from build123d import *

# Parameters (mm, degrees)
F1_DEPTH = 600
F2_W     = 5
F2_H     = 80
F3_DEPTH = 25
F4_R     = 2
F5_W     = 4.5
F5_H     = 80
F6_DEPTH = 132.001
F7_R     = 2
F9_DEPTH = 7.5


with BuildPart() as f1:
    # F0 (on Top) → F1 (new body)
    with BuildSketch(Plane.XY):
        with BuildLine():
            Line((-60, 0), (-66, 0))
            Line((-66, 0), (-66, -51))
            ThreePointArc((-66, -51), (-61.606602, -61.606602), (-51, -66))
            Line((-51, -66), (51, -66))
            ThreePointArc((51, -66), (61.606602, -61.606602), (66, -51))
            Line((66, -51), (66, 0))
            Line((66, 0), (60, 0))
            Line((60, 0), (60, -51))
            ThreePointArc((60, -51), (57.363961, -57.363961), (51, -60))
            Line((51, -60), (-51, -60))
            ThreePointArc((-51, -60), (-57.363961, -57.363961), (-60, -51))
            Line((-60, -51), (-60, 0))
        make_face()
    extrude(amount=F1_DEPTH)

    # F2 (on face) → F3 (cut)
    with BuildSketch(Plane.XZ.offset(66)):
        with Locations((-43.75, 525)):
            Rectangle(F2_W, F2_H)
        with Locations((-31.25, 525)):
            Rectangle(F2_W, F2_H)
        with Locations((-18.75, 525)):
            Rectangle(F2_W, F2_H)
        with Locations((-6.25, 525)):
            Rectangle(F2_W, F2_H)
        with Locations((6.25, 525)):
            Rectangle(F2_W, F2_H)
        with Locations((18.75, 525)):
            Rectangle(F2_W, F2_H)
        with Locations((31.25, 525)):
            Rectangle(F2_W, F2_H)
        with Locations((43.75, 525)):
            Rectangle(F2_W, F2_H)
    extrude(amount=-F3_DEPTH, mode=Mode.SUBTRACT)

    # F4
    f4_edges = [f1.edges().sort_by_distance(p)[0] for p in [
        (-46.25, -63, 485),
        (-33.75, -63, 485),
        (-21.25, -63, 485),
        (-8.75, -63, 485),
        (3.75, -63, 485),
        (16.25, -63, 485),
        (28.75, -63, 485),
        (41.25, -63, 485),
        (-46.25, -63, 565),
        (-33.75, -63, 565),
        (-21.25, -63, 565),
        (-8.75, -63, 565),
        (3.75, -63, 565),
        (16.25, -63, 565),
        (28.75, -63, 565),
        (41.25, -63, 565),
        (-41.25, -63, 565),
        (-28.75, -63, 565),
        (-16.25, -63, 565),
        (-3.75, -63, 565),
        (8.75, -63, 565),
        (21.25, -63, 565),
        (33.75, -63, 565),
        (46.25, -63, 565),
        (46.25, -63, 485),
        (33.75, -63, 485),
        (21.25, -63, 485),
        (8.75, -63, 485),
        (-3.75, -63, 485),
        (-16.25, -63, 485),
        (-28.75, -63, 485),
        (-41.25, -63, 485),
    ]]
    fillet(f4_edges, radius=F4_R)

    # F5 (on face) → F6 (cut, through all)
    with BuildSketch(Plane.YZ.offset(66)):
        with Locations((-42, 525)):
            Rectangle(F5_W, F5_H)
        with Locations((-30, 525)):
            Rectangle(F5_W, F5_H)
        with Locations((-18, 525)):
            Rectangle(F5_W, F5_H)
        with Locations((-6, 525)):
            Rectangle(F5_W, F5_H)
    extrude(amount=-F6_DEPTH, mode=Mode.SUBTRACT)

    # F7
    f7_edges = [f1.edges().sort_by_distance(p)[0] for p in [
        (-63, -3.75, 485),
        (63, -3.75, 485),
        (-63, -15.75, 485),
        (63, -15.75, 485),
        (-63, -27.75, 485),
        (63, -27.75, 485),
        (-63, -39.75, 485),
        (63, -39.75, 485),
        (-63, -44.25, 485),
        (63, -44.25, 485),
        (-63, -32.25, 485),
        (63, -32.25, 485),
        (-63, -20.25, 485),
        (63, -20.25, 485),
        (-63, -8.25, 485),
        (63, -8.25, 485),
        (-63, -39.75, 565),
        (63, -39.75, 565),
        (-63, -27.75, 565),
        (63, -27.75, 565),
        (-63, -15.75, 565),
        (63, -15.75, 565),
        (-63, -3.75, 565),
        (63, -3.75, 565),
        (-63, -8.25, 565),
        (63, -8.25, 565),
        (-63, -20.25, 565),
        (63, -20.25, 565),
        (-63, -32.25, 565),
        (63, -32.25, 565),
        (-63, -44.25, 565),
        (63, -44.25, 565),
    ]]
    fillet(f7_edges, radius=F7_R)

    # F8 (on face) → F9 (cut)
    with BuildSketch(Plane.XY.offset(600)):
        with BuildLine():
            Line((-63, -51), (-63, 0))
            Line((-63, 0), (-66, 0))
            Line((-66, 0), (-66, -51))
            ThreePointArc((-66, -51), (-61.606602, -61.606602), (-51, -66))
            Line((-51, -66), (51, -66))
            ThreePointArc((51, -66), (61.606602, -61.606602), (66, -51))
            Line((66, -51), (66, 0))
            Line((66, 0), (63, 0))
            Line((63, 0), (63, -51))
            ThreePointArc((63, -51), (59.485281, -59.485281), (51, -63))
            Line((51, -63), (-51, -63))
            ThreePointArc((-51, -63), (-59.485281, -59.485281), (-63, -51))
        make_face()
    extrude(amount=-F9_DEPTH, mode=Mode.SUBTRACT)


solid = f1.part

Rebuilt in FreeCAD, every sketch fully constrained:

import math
import FreeCAD as App
import Part
import Sketcher

V = App.Vector


def edges_at(feature, points):
    """Names of the edges that pass closest to the given points."""
    edges = feature.Shape.Edges
    near = lambda p: min(range(len(edges)), key=lambda i: edges[i].distToShape(Part.Vertex(*p))[0])
    return sorted({f"Edge{near(p) + 1}" for p in points})

doc = App.newDocument("Part")
body = doc.addObject("PartDesign::Body", "Body")

# Sketch on XY plane
sketch1 = body.newObject("Sketcher::SketchObject", "Sketch")
sketch1.AttachmentSupport = (doc.getObject("XY_Plane"), [""])
sketch1.MapMode = "FlatFace"
sketch1.addGeometry([
    Part.LineSegment(V(-60, 0, 0), V(-66, 0, 0)),  # 0
    Part.LineSegment(V(-66, 0, 0), V(-66, -51, 0)),  # 1
    Part.ArcOfCircle(Part.Circle(V(-51.000001, -51.000001, 0), V(0, 0, 1), 14.999999), math.radians(179.999996), math.radians(270.000004)),  # 2
    Part.LineSegment(V(-51, -66, 0), V(51, -66, 0)),  # 3
    Part.ArcOfCircle(Part.Circle(V(51.000001, -51.000001, 0), V(0, 0, 1), 14.999999), math.radians(-90.000004), math.radians(0.000004)),  # 4
    Part.LineSegment(V(66, -51, 0), V(66, 0, 0)),  # 5
    Part.LineSegment(V(66, 0, 0), V(60, 0, 0)),  # 6
    Part.LineSegment(V(60, 0, 0), V(60, -51, 0)),  # 7
    Part.ArcOfCircle(Part.Circle(V(51, -51, 0), V(0, 0, 1), 9), math.radians(-89.999999), math.radians(-0.000001)),  # 8
    Part.LineSegment(V(51, -60, 0), V(-51, -60, 0)),  # 9
    Part.ArcOfCircle(Part.Circle(V(-51, -51, 0), V(0, 0, 1), 9), math.radians(-179.999999), math.radians(-90.000001)),  # 10
    Part.LineSegment(V(-60, -51, 0), V(-60, 0, 0)),  # 11
], False)
sketch1.addConstraint([
    Sketcher.Constraint("Coincident", 0, 2, 1, 1),
    Sketcher.Constraint("Tangent", 1, 2, 2, 1),
    Sketcher.Constraint("Tangent", 2, 2, 3, 1),
    Sketcher.Constraint("Tangent", 3, 2, 4, 1),
    Sketcher.Constraint("Tangent", 4, 2, 5, 1),
    Sketcher.Constraint("Coincident", 5, 2, 6, 1),
    Sketcher.Constraint("Coincident", 6, 2, 7, 1),
    Sketcher.Constraint("Tangent", 7, 2, 8, 2),
    Sketcher.Constraint("Tangent", 8, 1, 9, 1),
    Sketcher.Constraint("Tangent", 9, 2, 10, 2),
    Sketcher.Constraint("Tangent", 10, 1, 11, 1),
    Sketcher.Constraint("Coincident", 11, 2, 0, 1),
    Sketcher.Constraint("Horizontal", 0),
    Sketcher.Constraint("Vertical", 1),
    Sketcher.Constraint("Horizontal", 3),
    Sketcher.Constraint("Vertical", 5),
    Sketcher.Constraint("Horizontal", 6),
    Sketcher.Constraint("Vertical", 7),
    Sketcher.Constraint("Horizontal", 9),
    Sketcher.Constraint("Vertical", 11),
    Sketcher.Constraint("Coincident", 8, 3, 4, 3),
    Sketcher.Constraint("Coincident", 10, 3, 2, 3),
    Sketcher.Constraint("Equal", 2, 4),
    Sketcher.Constraint("Symmetric", 0, 2, 5, 2, -1, 1),
    Sketcher.Constraint("PointOnObject", 0, 2, -1),
    Sketcher.Constraint("Radius", 2, 14.999999),
    Sketcher.Constraint("Radius", 8, 9.0),
    Sketcher.Constraint("DistanceX", 3, 1, 3, 2, 102.0),
    Sketcher.Constraint("DistanceY", 1, 2, 1, 1, 51.0),
])
pad1 = body.newObject("PartDesign::Pad", "Pad")
pad1.Profile = sketch1
pad1.Length = 600

# Sketch on XZ plane
sketch2 = body.newObject("Sketcher::SketchObject", "Sketch001")
sketch2.AttachmentSupport = (doc.getObject("XZ_Plane"), [""])
sketch2.MapMode = "FlatFace"
sketch2.AttachmentOffset = App.Placement(V(0, 0, 66), App.Rotation())
sketch2.addGeometry([
    Part.LineSegment(V(-46.25, 565, 0), V(-46.25, 485, 0)),  # 0
    Part.LineSegment(V(-46.25, 485, 0), V(-41.25, 485, 0)),  # 1
    Part.LineSegment(V(-41.25, 485, 0), V(-41.25, 565, 0)),  # 2
    Part.LineSegment(V(-41.25, 565, 0), V(-46.25, 565, 0)),  # 3
    Part.LineSegment(V(-33.75, 565, 0), V(-33.75, 485, 0)),  # 4
    Part.LineSegment(V(-33.75, 485, 0), V(-28.75, 485, 0)),  # 5
    Part.LineSegment(V(-28.75, 485, 0), V(-28.75, 565, 0)),  # 6
    Part.LineSegment(V(-28.75, 565, 0), V(-33.75, 565, 0)),  # 7
    Part.LineSegment(V(-21.25, 565, 0), V(-21.25, 485, 0)),  # 8
    Part.LineSegment(V(-21.25, 485, 0), V(-16.25, 485, 0)),  # 9
    Part.LineSegment(V(-16.25, 485, 0), V(-16.25, 565, 0)),  # 10
    Part.LineSegment(V(-16.25, 565, 0), V(-21.25, 565, 0)),  # 11
    Part.LineSegment(V(-8.75, 565, 0), V(-8.75, 485, 0)),  # 12
    Part.LineSegment(V(-8.75, 485, 0), V(-3.75, 485, 0)),  # 13
    Part.LineSegment(V(-3.75, 485, 0), V(-3.75, 565, 0)),  # 14
    Part.LineSegment(V(-3.75, 565, 0), V(-8.75, 565, 0)),  # 15
    Part.LineSegment(V(3.75, 565, 0), V(3.75, 485, 0)),  # 16
    Part.LineSegment(V(3.75, 485, 0), V(8.75, 485, 0)),  # 17
    Part.LineSegment(V(8.75, 485, 0), V(8.75, 565, 0)),  # 18
    Part.LineSegment(V(8.75, 565, 0), V(3.75, 565, 0)),  # 19
    Part.LineSegment(V(16.25, 565, 0), V(16.25, 485, 0)),  # 20
    Part.LineSegment(V(16.25, 485, 0), V(21.25, 485, 0)),  # 21
    Part.LineSegment(V(21.25, 485, 0), V(21.25, 565, 0)),  # 22
    Part.LineSegment(V(21.25, 565, 0), V(16.25, 565, 0)),  # 23
    Part.LineSegment(V(28.75, 565, 0), V(28.75, 485, 0)),  # 24
    Part.LineSegment(V(28.75, 485, 0), V(33.75, 485, 0)),  # 25
    Part.LineSegment(V(33.75, 485, 0), V(33.75, 565, 0)),  # 26
    Part.LineSegment(V(33.75, 565, 0), V(28.75, 565, 0)),  # 27
    Part.LineSegment(V(41.25, 565, 0), V(41.25, 485, 0)),  # 28
    Part.LineSegment(V(41.25, 485, 0), V(46.25, 485, 0)),  # 29
    Part.LineSegment(V(46.25, 485, 0), V(46.25, 565, 0)),  # 30
    Part.LineSegment(V(46.25, 565, 0), V(41.25, 565, 0)),  # 31
], False)
sketch2.addConstraint([
    Sketcher.Constraint("Coincident", 0, 2, 1, 1),
    Sketcher.Constraint("Coincident", 1, 2, 2, 1),
    Sketcher.Constraint("Coincident", 2, 2, 3, 1),
    Sketcher.Constraint("Coincident", 3, 2, 0, 1),
    Sketcher.Constraint("Coincident", 4, 2, 5, 1),
    Sketcher.Constraint("Coincident", 5, 2, 6, 1),
    Sketcher.Constraint("Coincident", 6, 2, 7, 1),
    Sketcher.Constraint("Coincident", 7, 2, 4, 1),
    Sketcher.Constraint("Coincident", 8, 2, 9, 1),
    Sketcher.Constraint("Coincident", 9, 2, 10, 1),
    Sketcher.Constraint("Coincident", 10, 2, 11, 1),
    Sketcher.Constraint("Coincident", 11, 2, 8, 1),
    Sketcher.Constraint("Coincident", 12, 2, 13, 1),
    Sketcher.Constraint("Coincident", 13, 2, 14, 1),
    Sketcher.Constraint("Coincident", 14, 2, 15, 1),
    Sketcher.Constraint("Coincident", 15, 2, 12, 1),
    Sketcher.Constraint("Coincident", 16, 2, 17, 1),
    Sketcher.Constraint("Coincident", 17, 2, 18, 1),
    Sketcher.Constraint("Coincident", 18, 2, 19, 1),
    Sketcher.Constraint("Coincident", 19, 2, 16, 1),
    Sketcher.Constraint("Coincident", 20, 2, 21, 1),
    Sketcher.Constraint("Coincident", 21, 2, 22, 1),
    Sketcher.Constraint("Coincident", 22, 2, 23, 1),
    Sketcher.Constraint("Coincident", 23, 2, 20, 1),
    Sketcher.Constraint("Coincident", 24, 2, 25, 1),
    Sketcher.Constraint("Coincident", 25, 2, 26, 1),
    Sketcher.Constraint("Coincident", 26, 2, 27, 1),
    Sketcher.Constraint("Coincident", 27, 2, 24, 1),
    Sketcher.Constraint("Coincident", 28, 2, 29, 1),
    Sketcher.Constraint("Coincident", 29, 2, 30, 1),
    Sketcher.Constraint("Coincident", 30, 2, 31, 1),
    Sketcher.Constraint("Coincident", 31, 2, 28, 1),
    Sketcher.Constraint("Vertical", 0),
    Sketcher.Constraint("Horizontal", 1),
    Sketcher.Constraint("Vertical", 2),
    Sketcher.Constraint("Horizontal", 3),
    Sketcher.Constraint("Vertical", 4),
    Sketcher.Constraint("Horizontal", 5),
    Sketcher.Constraint("Vertical", 6),
    Sketcher.Constraint("Horizontal", 7),
    Sketcher.Constraint("Vertical", 8),
    Sketcher.Constraint("Horizontal", 9),
    Sketcher.Constraint("Vertical", 10),
    Sketcher.Constraint("Horizontal", 11),
    Sketcher.Constraint("Vertical", 12),
    Sketcher.Constraint("Horizontal", 13),
    Sketcher.Constraint("Vertical", 14),
    Sketcher.Constraint("Horizontal", 15),
    Sketcher.Constraint("Vertical", 16),
    Sketcher.Constraint("Horizontal", 17),
    Sketcher.Constraint("Vertical", 18),
    Sketcher.Constraint("Horizontal", 19),
    Sketcher.Constraint("Vertical", 20),
    Sketcher.Constraint("Horizontal", 21),
    Sketcher.Constraint("Vertical", 22),
    Sketcher.Constraint("Horizontal", 23),
    Sketcher.Constraint("Vertical", 24),
    Sketcher.Constraint("Horizontal", 25),
    Sketcher.Constraint("Vertical", 26),
    Sketcher.Constraint("Horizontal", 27),
    Sketcher.Constraint("Vertical", 28),
    Sketcher.Constraint("Horizontal", 29),
    Sketcher.Constraint("Vertical", 30),
    Sketcher.Constraint("Horizontal", 31),
    Sketcher.Constraint("Symmetric", 13, 2, 16, 2, -2),
    Sketcher.Constraint("Symmetric", 15, 2, 18, 2, -2),
    Sketcher.Constraint("Symmetric", 9, 2, 20, 2, -2),
    Sketcher.Constraint("Symmetric", 11, 2, 22, 2, -2),
    Sketcher.Constraint("Symmetric", 5, 2, 24, 2, -2),
    Sketcher.Constraint("Symmetric", 7, 2, 26, 2, -2),
    Sketcher.Constraint("Symmetric", 1, 2, 28, 2, -2),
    Sketcher.Constraint("Symmetric", 3, 2, 30, 2, -2),
    Sketcher.Constraint("Horizontal", 1, 2, 4, 2),
    Sketcher.Constraint("Horizontal", 3, 2, 6, 2),
    Sketcher.Constraint("Horizontal", 5, 2, 8, 2),
    Sketcher.Constraint("Horizontal", 7, 2, 10, 2),
    Sketcher.Constraint("Horizontal", 9, 2, 12, 2),
    Sketcher.Constraint("Horizontal", 11, 2, 14, 2),
    Sketcher.Constraint("Equal", 3, 5),
    Sketcher.Constraint("Equal", 7, 9),
    Sketcher.Constraint("Equal", 11, 13),
    Sketcher.Constraint("DistanceX", 1, 1, 1, 2, 5.0),
    Sketcher.Constraint("DistanceY", 0, 2, 0, 1, 80.0),
    Sketcher.Constraint("DistanceY", -1, 1, 0, 2, 485.0),
    Sketcher.Constraint("DistanceX", 1, 2, 8, 2, 20.0),
    Sketcher.Constraint("DistanceX", 5, 2, 12, 2, 20.0),
    Sketcher.Constraint("DistanceX", 9, 2, 16, 2, 20.0),
    Sketcher.Constraint("DistanceX", 1, 2, 4, 2, 7.5),
])
pocket1 = body.newObject("PartDesign::Pocket", "Pocket")
pocket1.Profile = sketch2
pocket1.Length = 25
doc.recompute()

fillet = body.newObject("PartDesign::Fillet", "Fillet")
fillet.Base = (pocket1, edges_at(pocket1, [
    (-46.25, -63, 485),
    (-33.75, -63, 485),
    (-21.25, -63, 485),
    (-8.75, -63, 485),
    (3.75, -63, 485),
    (16.25, -63, 485),
    (28.75, -63, 485),
    (41.25, -63, 485),
    (-46.25, -63, 565),
    (-33.75, -63, 565),
    (-21.25, -63, 565),
    (-8.75, -63, 565),
    (3.75, -63, 565),
    (16.25, -63, 565),
    (28.75, -63, 565),
    (41.25, -63, 565),
    (-41.25, -63, 565),
    (-28.75, -63, 565),
    (-16.25, -63, 565),
    (-3.75, -63, 565),
    (8.75, -63, 565),
    (21.25, -63, 565),
    (33.75, -63, 565),
    (46.25, -63, 565),
    (46.25, -63, 485),
    (33.75, -63, 485),
    (21.25, -63, 485),
    (8.75, -63, 485),
    (-3.75, -63, 485),
    (-16.25, -63, 485),
    (-28.75, -63, 485),
    (-41.25, -63, 485),
]))
fillet.Radius = 2

# Sketch on YZ plane
sketch3 = body.newObject("Sketcher::SketchObject", "Sketch002")
sketch3.AttachmentSupport = (doc.getObject("YZ_Plane"), [""])
sketch3.MapMode = "FlatFace"
sketch3.AttachmentOffset = App.Placement(V(0, 0, 66), App.Rotation())
sketch3.addGeometry([
    Part.LineSegment(V(-44.25, 565, 0), V(-44.25, 485, 0)),  # 0
    Part.LineSegment(V(-44.25, 485, 0), V(-39.75, 485, 0)),  # 1
    Part.LineSegment(V(-39.75, 485, 0), V(-39.75, 565, 0)),  # 2
    Part.LineSegment(V(-39.75, 565, 0), V(-44.25, 565, 0)),  # 3
    Part.LineSegment(V(-32.25, 565, 0), V(-32.25, 485, 0)),  # 4
    Part.LineSegment(V(-32.25, 485, 0), V(-27.75, 485, 0)),  # 5
    Part.LineSegment(V(-27.75, 485, 0), V(-27.75, 565, 0)),  # 6
    Part.LineSegment(V(-27.75, 565, 0), V(-32.25, 565, 0)),  # 7
    Part.LineSegment(V(-20.25, 565, 0), V(-20.25, 485, 0)),  # 8
    Part.LineSegment(V(-20.25, 485, 0), V(-15.75, 485, 0)),  # 9
    Part.LineSegment(V(-15.75, 485, 0), V(-15.75, 565, 0)),  # 10
    Part.LineSegment(V(-15.75, 565, 0), V(-20.25, 565, 0)),  # 11
    Part.LineSegment(V(-8.25, 565, 0), V(-8.25, 485, 0)),  # 12
    Part.LineSegment(V(-8.25, 485, 0), V(-3.75, 485, 0)),  # 13
    Part.LineSegment(V(-3.75, 485, 0), V(-3.75, 565, 0)),  # 14
    Part.LineSegment(V(-3.75, 565, 0), V(-8.25, 565, 0)),  # 15
], False)
sketch3.addConstraint([
    Sketcher.Constraint("Coincident", 0, 2, 1, 1),
    Sketcher.Constraint("Coincident", 1, 2, 2, 1),
    Sketcher.Constraint("Coincident", 2, 2, 3, 1),
    Sketcher.Constraint("Coincident", 3, 2, 0, 1),
    Sketcher.Constraint("Coincident", 4, 2, 5, 1),
    Sketcher.Constraint("Coincident", 5, 2, 6, 1),
    Sketcher.Constraint("Coincident", 6, 2, 7, 1),
    Sketcher.Constraint("Coincident", 7, 2, 4, 1),
    Sketcher.Constraint("Coincident", 8, 2, 9, 1),
    Sketcher.Constraint("Coincident", 9, 2, 10, 1),
    Sketcher.Constraint("Coincident", 10, 2, 11, 1),
    Sketcher.Constraint("Coincident", 11, 2, 8, 1),
    Sketcher.Constraint("Coincident", 12, 2, 13, 1),
    Sketcher.Constraint("Coincident", 13, 2, 14, 1),
    Sketcher.Constraint("Coincident", 14, 2, 15, 1),
    Sketcher.Constraint("Coincident", 15, 2, 12, 1),
    Sketcher.Constraint("Vertical", 0),
    Sketcher.Constraint("Horizontal", 1),
    Sketcher.Constraint("Vertical", 2),
    Sketcher.Constraint("Horizontal", 3),
    Sketcher.Constraint("Vertical", 4),
    Sketcher.Constraint("Horizontal", 5),
    Sketcher.Constraint("Vertical", 6),
    Sketcher.Constraint("Horizontal", 7),
    Sketcher.Constraint("Vertical", 8),
    Sketcher.Constraint("Horizontal", 9),
    Sketcher.Constraint("Vertical", 10),
    Sketcher.Constraint("Horizontal", 11),
    Sketcher.Constraint("Vertical", 12),
    Sketcher.Constraint("Horizontal", 13),
    Sketcher.Constraint("Vertical", 14),
    Sketcher.Constraint("Horizontal", 15),
    Sketcher.Constraint("Horizontal", 1, 2, 4, 2),
    Sketcher.Constraint("Horizontal", 3, 2, 6, 2),
    Sketcher.Constraint("Horizontal", 5, 2, 8, 2),
    Sketcher.Constraint("Horizontal", 7, 2, 10, 2),
    Sketcher.Constraint("Horizontal", 9, 2, 12, 2),
    Sketcher.Constraint("Horizontal", 11, 2, 14, 2),
    Sketcher.Constraint("Equal", 3, 5),
    Sketcher.Constraint("Equal", 7, 9),
    Sketcher.Constraint("Equal", 11, 13),
    Sketcher.Constraint("DistanceY", 0, 2, 0, 1, 80.0),
    Sketcher.Constraint("DistanceX", 1, 1, 1, 2, 4.5),
    Sketcher.Constraint("DistanceY", -1, 1, 0, 2, 485.0),
    Sketcher.Constraint("DistanceX", 0, 2, 4, 2, 12.0),
    Sketcher.Constraint("DistanceX", 4, 2, 8, 2, 12.0),
    Sketcher.Constraint("DistanceX", 8, 2, 12, 2, 12.0),
    Sketcher.Constraint("DistanceX", 0, 2, -1, 1, 44.25),
])
pocket2 = body.newObject("PartDesign::Pocket", "Pocket001")
pocket2.Profile = sketch3
pocket2.Type = "ThroughAll"
doc.recompute()

fillet2 = body.newObject("PartDesign::Fillet", "Fillet001")
fillet2.Base = (pocket2, edges_at(pocket2, [
    (-63, -3.75, 485),
    (63, -3.75, 485),
    (-63, -15.75, 485),
    (63, -15.75, 485),
    (-63, -27.75, 485),
    (63, -27.75, 485),
    (-63, -39.75, 485),
    (63, -39.75, 485),
    (-63, -44.25, 485),
    (63, -44.25, 485),
    (-63, -32.25, 485),
    (63, -32.25, 485),
    (-63, -20.25, 485),
    (63, -20.25, 485),
    (-63, -8.25, 485),
    (63, -8.25, 485),
    (-63, -39.75, 565),
    (63, -39.75, 565),
    (-63, -27.75, 565),
    (63, -27.75, 565),
    (-63, -15.75, 565),
    (63, -15.75, 565),
    (-63, -3.75, 565),
    (63, -3.75, 565),
    (-63, -8.25, 565),
    (63, -8.25, 565),
    (-63, -20.25, 565),
    (63, -20.25, 565),
    (-63, -32.25, 565),
    (63, -32.25, 565),
    (-63, -44.25, 565),
    (63, -44.25, 565),
]))
fillet2.Radius = 2

# Sketch on XY plane
sketch4 = body.newObject("Sketcher::SketchObject", "Sketch003")
sketch4.AttachmentSupport = (doc.getObject("XY_Plane"), [""])
sketch4.MapMode = "FlatFace"
sketch4.AttachmentOffset = App.Placement(V(0, 0, 600), App.Rotation())
sketch4.addGeometry([
    Part.LineSegment(V(-63, -51, 0), V(-63, 0, 0)),  # 0
    Part.LineSegment(V(-63, 0, 0), V(-66, 0, 0)),  # 1
    Part.LineSegment(V(-66, 0, 0), V(-66, -51, 0)),  # 2
    Part.ArcOfCircle(Part.Circle(V(-51.000001, -51.000001, 0), V(0, 0, 1), 14.999999), math.radians(179.999996), math.radians(270.000004)),  # 3
    Part.LineSegment(V(-51, -66, 0), V(51, -66, 0)),  # 4
    Part.ArcOfCircle(Part.Circle(V(51.000001, -51.000001, 0), V(0, 0, 1), 14.999999), math.radians(-90.000004), math.radians(0.000004)),  # 5
    Part.LineSegment(V(66, -51, 0), V(66, 0, 0)),  # 6
    Part.LineSegment(V(66, 0, 0), V(63, 0, 0)),  # 7
    Part.LineSegment(V(63, 0, 0), V(63, -51, 0)),  # 8
    Part.ArcOfCircle(Part.Circle(V(50.999999, -50.999999, 0), V(0, 0, 1), 12.000001), math.radians(-89.999994), math.radians(-0.000006)),  # 9
    Part.LineSegment(V(51, -63, 0), V(-51, -63, 0)),  # 10
    Part.ArcOfCircle(Part.Circle(V(-50.999999, -50.999999, 0), V(0, 0, 1), 12.000001), math.radians(-179.999994), math.radians(-90.000006)),  # 11
], False)
sketch4.addConstraint([
    Sketcher.Constraint("Coincident", 0, 2, 1, 1),
    Sketcher.Constraint("Coincident", 1, 2, 2, 1),
    Sketcher.Constraint("Tangent", 2, 2, 3, 1),
    Sketcher.Constraint("Tangent", 3, 2, 4, 1),
    Sketcher.Constraint("Tangent", 4, 2, 5, 1),
    Sketcher.Constraint("Tangent", 5, 2, 6, 1),
    Sketcher.Constraint("Coincident", 6, 2, 7, 1),
    Sketcher.Constraint("Coincident", 7, 2, 8, 1),
    Sketcher.Constraint("Tangent", 8, 2, 9, 2),
    Sketcher.Constraint("Tangent", 9, 1, 10, 1),
    Sketcher.Constraint("Tangent", 10, 2, 11, 2),
    Sketcher.Constraint("Tangent", 11, 1, 0, 1),
    Sketcher.Constraint("Vertical", 0),
    Sketcher.Constraint("Horizontal", 1),
    Sketcher.Constraint("Vertical", 2),
    Sketcher.Constraint("Horizontal", 4),
    Sketcher.Constraint("Vertical", 6),
    Sketcher.Constraint("Horizontal", 7),
    Sketcher.Constraint("Vertical", 8),
    Sketcher.Constraint("Horizontal", 10),
    Sketcher.Constraint("Coincident", 9, 3, 5, 3),
    Sketcher.Constraint("Coincident", 11, 3, 3, 3),
    Sketcher.Constraint("Equal", 3, 5),
    Sketcher.Constraint("Symmetric", 1, 2, 6, 2, -1, 1),
    Sketcher.Constraint("PointOnObject", 0, 2, -1),
    Sketcher.Constraint("Radius", 3, 14.999999),
    Sketcher.Constraint("Radius", 9, 12.000001),
    Sketcher.Constraint("DistanceX", 4, 1, 4, 2, 102.0),
    Sketcher.Constraint("DistanceY", 0, 1, 0, 2, 51.0),
])
pocket3 = body.newObject("PartDesign::Pocket", "Pocket002")
pocket3.Profile = sketch4
pocket3.Length = 7.5

doc.recompute()
